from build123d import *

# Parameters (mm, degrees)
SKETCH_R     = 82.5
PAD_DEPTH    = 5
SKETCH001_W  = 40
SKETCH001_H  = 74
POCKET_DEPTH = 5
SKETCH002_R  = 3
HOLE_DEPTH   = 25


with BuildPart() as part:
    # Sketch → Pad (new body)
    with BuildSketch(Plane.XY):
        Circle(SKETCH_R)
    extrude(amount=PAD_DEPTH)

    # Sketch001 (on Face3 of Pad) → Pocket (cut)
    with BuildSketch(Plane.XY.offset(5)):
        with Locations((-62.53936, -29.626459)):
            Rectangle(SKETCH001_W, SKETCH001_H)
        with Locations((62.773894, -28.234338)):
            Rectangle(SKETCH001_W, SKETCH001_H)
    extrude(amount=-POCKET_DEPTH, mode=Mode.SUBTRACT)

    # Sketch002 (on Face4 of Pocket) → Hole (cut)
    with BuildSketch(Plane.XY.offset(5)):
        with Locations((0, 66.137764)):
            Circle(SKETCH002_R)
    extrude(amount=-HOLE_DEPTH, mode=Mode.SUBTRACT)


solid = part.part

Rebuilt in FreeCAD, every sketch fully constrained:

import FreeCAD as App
import Part
import Sketcher
Q = App.Units.Quantity

doc = App.newDocument("Part")
body = doc.addObject("PartDesign::Body", "Body")

# Sketch on XY plane
sketch1 = doc.addObject("Sketcher::SketchObject", "Sketch")
body.addObject(sketch1)
sketch1.AttachmentSupport = (doc.XY_Plane, [""])
sketch1.MapMode = "FlatFace"
sketch1.addGeometry(Part.Circle(App.Vector(0, 0, 0), App.Vector(0, 0, 1), 82.5), False)
sketch1.addConstraint([
    Sketcher.Constraint("Coincident", 0, 3, -1, 1),
    Sketcher.Constraint("Diameter", 0, Q("165 mm")),
])
pad1 = doc.addObject("PartDesign::Pad", "Pad")
body.addObject(pad1)
pad1.Profile = sketch1
pad1.Length = 5

# Sketch on XY plane
sketch2 = doc.addObject("Sketcher::SketchObject", "Sketch001")
body.addObject(sketch2)
sketch2.AttachmentSupport = (doc.XY_Plane, [""])
sketch2.MapMode = "FlatFace"
sketch2.AttachmentOffset = App.Placement(App.Vector(0, 0, 5), App.Rotation())
sketch2.addGeometry([
    Part.LineSegment(App.Vector(-82.53936, 7.373541, 0), App.Vector(-82.53936, -66.626459, 0)),  # 0
    Part.LineSegment(App.Vector(-82.53936, -66.626459, 0), App.Vector(-42.53936, -66.626459, 0)),  # 1
    Part.LineSegment(App.Vector(-42.53936, -66.626459, 0), App.Vector(-42.53936, 7.373541, 0)),  # 2
    Part.LineSegment(App.Vector(-42.53936, 7.373541, 0), App.Vector(-82.53936, 7.373541, 0)),  # 3
    Part.LineSegment(App.Vector(42.773894, 8.765662, 0), App.Vector(42.773894, -65.234338, 0)),  # 4
    Part.LineSegment(App.Vector(42.773894, -65.234338, 0), App.Vector(82.773894, -65.234338, 0)),  # 5
    Part.LineSegment(App.Vector(82.773894, -65.234338, 0), App.Vector(82.773894, 8.765662, 0)),  # 6
    Part.LineSegment(App.Vector(82.773894, 8.765662, 0), App.Vector(42.773894, 8.765662, 0)),  # 7
], False)
sketch2.addConstraint([
    Sketcher.Constraint("Coincident", 0, 2, 1, 1),
    Sketcher.Constraint("Coincident", 1, 2, 2, 1),
    Sketcher.Constraint("Coincident", 2, 2, 3, 1),
    Sketcher.Constraint("Coincident", 3, 2, 0, 1),
    Sketcher.Constraint("Coincident", 4, 2, 5, 1),
    Sketcher.Constraint("Coincident", 5, 2, 6, 1),
    Sketcher.Constraint("Coincident", 6, 2, 7, 1),
    Sketcher.Constraint("Coincident", 7, 2, 4, 1),
    Sketcher.Constraint("Vertical", 0),
    Sketcher.Constraint("Horizontal", 1),
    Sketcher.Constraint("Vertical", 2),
    Sketcher.Constraint("Horizontal", 3),
    Sketcher.Constraint("Vertical", 4),
    Sketcher.Constraint("Horizontal", 5),
    Sketcher.Constraint("Vertical", 6),
    Sketcher.Constraint("Horizontal", 7),
    Sketcher.Constraint("Equal", 3, 5),
    Sketcher.Constraint("Equal", 2, 4),
    Sketcher.Constraint("DistanceX", 1, 1, 1, 2, Q("40 mm")),
    Sketcher.Constraint("DistanceY", 0, 2, 0, 1, Q("74 mm")),
    Sketcher.Constraint("DistanceX", 0, 2, -1, 1, Q("82.53936 mm")),
    Sketcher.Constraint("DistanceY", 0, 2, -1, 1, Q("66.626459 mm")),
    Sketcher.Constraint("DistanceY", 1, 2, 4, 2, Q("1.392121 mm")),
    Sketcher.Constraint("DistanceX", -1, 1, 4, 2, Q("42.773894 mm")),
])
pocket1 = doc.addObject("PartDesign::Pocket", "Pocket")
body.addObject(pocket1)
pocket1.Profile = sketch2
pocket1.Length = 5

# Sketch on XY plane
sketch3 = doc.addObject("Sketcher::SketchObject", "Sketch002")
body.addObject(sketch3)
sketch3.AttachmentSupport = (doc.XY_Plane, [""])
sketch3.MapMode = "FlatFace"
sketch3.AttachmentOffset = App.Placement(App.Vector(0, 0, 5), App.Rotation())
sketch3.addGeometry(Part.Circle(App.Vector(0, 66.137764, 0), App.Vector(0, 0, 1), 3), False)
sketch3.addConstraint([
    Sketcher.Constraint("PointOnObject", 0, 3, -2),
    Sketcher.Constraint("Diameter", 0, Q("6 mm")),
    Sketcher.Constraint("DistanceY", -1, 1, 0, 3, Q("66.137764 mm")),
])
pocket2 = doc.addObject("PartDesign::Pocket", "Pocket001")
body.addObject(pocket2)
pocket2.Profile = sketch3
pocket2.Length = 25

doc.recompute()
